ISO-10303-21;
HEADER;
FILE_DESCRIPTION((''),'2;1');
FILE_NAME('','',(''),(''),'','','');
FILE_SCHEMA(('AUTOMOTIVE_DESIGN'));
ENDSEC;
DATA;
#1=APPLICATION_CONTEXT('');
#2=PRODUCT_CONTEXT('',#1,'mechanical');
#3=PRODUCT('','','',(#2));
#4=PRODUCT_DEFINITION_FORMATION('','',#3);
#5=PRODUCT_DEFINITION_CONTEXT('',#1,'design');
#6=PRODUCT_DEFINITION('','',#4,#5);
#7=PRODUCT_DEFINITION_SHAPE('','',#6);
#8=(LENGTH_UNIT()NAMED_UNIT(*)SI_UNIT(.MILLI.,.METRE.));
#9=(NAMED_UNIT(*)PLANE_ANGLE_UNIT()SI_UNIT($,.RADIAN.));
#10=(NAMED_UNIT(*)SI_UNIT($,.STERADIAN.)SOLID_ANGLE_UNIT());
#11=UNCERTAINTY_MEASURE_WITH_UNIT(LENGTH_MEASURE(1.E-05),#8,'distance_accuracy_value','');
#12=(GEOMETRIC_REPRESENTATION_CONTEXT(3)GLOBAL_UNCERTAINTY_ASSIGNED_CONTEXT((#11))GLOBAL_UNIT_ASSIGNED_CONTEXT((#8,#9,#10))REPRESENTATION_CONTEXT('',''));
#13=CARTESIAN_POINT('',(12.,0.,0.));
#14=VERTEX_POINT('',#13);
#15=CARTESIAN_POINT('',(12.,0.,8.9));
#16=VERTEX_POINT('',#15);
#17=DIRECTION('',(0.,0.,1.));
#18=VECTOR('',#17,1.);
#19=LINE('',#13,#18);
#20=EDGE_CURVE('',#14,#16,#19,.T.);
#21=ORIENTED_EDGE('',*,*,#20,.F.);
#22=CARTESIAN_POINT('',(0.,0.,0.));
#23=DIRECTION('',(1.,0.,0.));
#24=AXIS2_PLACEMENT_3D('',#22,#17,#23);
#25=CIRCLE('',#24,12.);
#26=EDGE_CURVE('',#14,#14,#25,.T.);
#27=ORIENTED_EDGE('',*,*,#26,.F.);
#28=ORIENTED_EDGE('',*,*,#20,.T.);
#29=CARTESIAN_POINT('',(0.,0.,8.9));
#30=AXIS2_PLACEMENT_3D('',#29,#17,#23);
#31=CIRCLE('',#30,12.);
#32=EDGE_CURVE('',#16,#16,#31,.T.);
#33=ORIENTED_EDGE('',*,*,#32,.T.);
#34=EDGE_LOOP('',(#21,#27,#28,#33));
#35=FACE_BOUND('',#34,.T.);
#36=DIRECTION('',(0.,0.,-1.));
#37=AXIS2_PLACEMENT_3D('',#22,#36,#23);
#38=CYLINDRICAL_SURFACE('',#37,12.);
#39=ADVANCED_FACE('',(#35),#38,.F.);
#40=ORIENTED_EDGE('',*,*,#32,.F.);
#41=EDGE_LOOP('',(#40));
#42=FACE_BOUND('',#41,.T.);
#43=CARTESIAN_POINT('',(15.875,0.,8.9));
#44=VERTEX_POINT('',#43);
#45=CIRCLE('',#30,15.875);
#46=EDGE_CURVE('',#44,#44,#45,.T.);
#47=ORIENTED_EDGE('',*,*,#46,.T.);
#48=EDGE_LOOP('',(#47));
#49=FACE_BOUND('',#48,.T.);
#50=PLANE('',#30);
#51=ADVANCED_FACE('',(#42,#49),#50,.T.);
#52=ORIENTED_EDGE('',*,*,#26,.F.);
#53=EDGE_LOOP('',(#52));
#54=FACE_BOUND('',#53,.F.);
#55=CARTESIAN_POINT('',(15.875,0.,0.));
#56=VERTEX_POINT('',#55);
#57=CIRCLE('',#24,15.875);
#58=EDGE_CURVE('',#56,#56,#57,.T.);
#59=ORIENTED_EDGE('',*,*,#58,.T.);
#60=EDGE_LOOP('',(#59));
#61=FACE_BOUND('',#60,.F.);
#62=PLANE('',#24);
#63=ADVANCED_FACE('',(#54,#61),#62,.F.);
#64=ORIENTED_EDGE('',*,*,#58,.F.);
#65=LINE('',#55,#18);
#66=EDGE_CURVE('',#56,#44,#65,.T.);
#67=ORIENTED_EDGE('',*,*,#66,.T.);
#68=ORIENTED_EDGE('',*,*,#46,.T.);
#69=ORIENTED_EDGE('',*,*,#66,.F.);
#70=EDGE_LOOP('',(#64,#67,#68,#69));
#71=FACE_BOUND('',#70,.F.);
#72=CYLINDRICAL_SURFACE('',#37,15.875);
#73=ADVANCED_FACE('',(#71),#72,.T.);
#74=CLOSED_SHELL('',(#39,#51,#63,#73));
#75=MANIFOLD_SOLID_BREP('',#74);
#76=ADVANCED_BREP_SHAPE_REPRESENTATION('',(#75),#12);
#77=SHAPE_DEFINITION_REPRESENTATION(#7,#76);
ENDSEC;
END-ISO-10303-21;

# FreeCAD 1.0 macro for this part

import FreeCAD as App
import Part
import Sketcher
from FreeCAD import Vector
Q = App.Units.Quantity

doc = App.newDocument("Part")
params = doc.addObject("Spreadsheet::Sheet", "Params")
for row, (alias, value) in enumerate([
    ("sketch1_diameter", "31.75 mm"),
    ("sketch1_diameter2", "24 mm"),
    ("pad1_length", "8.9 mm"),
], start=1):
    params.set(f"A{row}", alias)
    params.set(f"B{row}", "=" + value)
    params.setAlias(f"B{row}", alias)

body = doc.addObject("PartDesign::Body", "Body")

# Sketch on XY plane
sketch1 = body.newObject("Sketcher::SketchObject", "Sketch")
sketch1.AttachmentSupport = (doc.getObject("XY_Plane"), [""])
sketch1.MapMode = "FlatFace"
sketch1.addGeometry(Part.Circle(Vector(0, 0, 0), Vector(0, 0, 1), 15.875), False)
sketch1.addGeometry(Part.Circle(Vector(0, 0, 0), Vector(0, 0, 1), 12), False)
sketch1.addConstraint(Sketcher.Constraint("Coincident", 0, 3, -1, 1))
sketch1.addConstraint(Sketcher.Constraint("Coincident", 1, 3, -1, 1))
sketch1.addConstraint(Sketcher.Constraint("Diameter", 0, Q("31.75 mm")))
sketch1.addConstraint(Sketcher.Constraint("Diameter", 1, Q("24 mm")))
sketch1.setExpression("Constraints[2]", "Params.sketch1_diameter")
sketch1.setExpression("Constraints[3]", "Params.sketch1_diameter2")
pad1 = body.newObject("PartDesign::Pad", "Pad")
pad1.Profile = sketch1
pad1.setExpression("Length", "Params.pad1_length")

doc.recompute()
